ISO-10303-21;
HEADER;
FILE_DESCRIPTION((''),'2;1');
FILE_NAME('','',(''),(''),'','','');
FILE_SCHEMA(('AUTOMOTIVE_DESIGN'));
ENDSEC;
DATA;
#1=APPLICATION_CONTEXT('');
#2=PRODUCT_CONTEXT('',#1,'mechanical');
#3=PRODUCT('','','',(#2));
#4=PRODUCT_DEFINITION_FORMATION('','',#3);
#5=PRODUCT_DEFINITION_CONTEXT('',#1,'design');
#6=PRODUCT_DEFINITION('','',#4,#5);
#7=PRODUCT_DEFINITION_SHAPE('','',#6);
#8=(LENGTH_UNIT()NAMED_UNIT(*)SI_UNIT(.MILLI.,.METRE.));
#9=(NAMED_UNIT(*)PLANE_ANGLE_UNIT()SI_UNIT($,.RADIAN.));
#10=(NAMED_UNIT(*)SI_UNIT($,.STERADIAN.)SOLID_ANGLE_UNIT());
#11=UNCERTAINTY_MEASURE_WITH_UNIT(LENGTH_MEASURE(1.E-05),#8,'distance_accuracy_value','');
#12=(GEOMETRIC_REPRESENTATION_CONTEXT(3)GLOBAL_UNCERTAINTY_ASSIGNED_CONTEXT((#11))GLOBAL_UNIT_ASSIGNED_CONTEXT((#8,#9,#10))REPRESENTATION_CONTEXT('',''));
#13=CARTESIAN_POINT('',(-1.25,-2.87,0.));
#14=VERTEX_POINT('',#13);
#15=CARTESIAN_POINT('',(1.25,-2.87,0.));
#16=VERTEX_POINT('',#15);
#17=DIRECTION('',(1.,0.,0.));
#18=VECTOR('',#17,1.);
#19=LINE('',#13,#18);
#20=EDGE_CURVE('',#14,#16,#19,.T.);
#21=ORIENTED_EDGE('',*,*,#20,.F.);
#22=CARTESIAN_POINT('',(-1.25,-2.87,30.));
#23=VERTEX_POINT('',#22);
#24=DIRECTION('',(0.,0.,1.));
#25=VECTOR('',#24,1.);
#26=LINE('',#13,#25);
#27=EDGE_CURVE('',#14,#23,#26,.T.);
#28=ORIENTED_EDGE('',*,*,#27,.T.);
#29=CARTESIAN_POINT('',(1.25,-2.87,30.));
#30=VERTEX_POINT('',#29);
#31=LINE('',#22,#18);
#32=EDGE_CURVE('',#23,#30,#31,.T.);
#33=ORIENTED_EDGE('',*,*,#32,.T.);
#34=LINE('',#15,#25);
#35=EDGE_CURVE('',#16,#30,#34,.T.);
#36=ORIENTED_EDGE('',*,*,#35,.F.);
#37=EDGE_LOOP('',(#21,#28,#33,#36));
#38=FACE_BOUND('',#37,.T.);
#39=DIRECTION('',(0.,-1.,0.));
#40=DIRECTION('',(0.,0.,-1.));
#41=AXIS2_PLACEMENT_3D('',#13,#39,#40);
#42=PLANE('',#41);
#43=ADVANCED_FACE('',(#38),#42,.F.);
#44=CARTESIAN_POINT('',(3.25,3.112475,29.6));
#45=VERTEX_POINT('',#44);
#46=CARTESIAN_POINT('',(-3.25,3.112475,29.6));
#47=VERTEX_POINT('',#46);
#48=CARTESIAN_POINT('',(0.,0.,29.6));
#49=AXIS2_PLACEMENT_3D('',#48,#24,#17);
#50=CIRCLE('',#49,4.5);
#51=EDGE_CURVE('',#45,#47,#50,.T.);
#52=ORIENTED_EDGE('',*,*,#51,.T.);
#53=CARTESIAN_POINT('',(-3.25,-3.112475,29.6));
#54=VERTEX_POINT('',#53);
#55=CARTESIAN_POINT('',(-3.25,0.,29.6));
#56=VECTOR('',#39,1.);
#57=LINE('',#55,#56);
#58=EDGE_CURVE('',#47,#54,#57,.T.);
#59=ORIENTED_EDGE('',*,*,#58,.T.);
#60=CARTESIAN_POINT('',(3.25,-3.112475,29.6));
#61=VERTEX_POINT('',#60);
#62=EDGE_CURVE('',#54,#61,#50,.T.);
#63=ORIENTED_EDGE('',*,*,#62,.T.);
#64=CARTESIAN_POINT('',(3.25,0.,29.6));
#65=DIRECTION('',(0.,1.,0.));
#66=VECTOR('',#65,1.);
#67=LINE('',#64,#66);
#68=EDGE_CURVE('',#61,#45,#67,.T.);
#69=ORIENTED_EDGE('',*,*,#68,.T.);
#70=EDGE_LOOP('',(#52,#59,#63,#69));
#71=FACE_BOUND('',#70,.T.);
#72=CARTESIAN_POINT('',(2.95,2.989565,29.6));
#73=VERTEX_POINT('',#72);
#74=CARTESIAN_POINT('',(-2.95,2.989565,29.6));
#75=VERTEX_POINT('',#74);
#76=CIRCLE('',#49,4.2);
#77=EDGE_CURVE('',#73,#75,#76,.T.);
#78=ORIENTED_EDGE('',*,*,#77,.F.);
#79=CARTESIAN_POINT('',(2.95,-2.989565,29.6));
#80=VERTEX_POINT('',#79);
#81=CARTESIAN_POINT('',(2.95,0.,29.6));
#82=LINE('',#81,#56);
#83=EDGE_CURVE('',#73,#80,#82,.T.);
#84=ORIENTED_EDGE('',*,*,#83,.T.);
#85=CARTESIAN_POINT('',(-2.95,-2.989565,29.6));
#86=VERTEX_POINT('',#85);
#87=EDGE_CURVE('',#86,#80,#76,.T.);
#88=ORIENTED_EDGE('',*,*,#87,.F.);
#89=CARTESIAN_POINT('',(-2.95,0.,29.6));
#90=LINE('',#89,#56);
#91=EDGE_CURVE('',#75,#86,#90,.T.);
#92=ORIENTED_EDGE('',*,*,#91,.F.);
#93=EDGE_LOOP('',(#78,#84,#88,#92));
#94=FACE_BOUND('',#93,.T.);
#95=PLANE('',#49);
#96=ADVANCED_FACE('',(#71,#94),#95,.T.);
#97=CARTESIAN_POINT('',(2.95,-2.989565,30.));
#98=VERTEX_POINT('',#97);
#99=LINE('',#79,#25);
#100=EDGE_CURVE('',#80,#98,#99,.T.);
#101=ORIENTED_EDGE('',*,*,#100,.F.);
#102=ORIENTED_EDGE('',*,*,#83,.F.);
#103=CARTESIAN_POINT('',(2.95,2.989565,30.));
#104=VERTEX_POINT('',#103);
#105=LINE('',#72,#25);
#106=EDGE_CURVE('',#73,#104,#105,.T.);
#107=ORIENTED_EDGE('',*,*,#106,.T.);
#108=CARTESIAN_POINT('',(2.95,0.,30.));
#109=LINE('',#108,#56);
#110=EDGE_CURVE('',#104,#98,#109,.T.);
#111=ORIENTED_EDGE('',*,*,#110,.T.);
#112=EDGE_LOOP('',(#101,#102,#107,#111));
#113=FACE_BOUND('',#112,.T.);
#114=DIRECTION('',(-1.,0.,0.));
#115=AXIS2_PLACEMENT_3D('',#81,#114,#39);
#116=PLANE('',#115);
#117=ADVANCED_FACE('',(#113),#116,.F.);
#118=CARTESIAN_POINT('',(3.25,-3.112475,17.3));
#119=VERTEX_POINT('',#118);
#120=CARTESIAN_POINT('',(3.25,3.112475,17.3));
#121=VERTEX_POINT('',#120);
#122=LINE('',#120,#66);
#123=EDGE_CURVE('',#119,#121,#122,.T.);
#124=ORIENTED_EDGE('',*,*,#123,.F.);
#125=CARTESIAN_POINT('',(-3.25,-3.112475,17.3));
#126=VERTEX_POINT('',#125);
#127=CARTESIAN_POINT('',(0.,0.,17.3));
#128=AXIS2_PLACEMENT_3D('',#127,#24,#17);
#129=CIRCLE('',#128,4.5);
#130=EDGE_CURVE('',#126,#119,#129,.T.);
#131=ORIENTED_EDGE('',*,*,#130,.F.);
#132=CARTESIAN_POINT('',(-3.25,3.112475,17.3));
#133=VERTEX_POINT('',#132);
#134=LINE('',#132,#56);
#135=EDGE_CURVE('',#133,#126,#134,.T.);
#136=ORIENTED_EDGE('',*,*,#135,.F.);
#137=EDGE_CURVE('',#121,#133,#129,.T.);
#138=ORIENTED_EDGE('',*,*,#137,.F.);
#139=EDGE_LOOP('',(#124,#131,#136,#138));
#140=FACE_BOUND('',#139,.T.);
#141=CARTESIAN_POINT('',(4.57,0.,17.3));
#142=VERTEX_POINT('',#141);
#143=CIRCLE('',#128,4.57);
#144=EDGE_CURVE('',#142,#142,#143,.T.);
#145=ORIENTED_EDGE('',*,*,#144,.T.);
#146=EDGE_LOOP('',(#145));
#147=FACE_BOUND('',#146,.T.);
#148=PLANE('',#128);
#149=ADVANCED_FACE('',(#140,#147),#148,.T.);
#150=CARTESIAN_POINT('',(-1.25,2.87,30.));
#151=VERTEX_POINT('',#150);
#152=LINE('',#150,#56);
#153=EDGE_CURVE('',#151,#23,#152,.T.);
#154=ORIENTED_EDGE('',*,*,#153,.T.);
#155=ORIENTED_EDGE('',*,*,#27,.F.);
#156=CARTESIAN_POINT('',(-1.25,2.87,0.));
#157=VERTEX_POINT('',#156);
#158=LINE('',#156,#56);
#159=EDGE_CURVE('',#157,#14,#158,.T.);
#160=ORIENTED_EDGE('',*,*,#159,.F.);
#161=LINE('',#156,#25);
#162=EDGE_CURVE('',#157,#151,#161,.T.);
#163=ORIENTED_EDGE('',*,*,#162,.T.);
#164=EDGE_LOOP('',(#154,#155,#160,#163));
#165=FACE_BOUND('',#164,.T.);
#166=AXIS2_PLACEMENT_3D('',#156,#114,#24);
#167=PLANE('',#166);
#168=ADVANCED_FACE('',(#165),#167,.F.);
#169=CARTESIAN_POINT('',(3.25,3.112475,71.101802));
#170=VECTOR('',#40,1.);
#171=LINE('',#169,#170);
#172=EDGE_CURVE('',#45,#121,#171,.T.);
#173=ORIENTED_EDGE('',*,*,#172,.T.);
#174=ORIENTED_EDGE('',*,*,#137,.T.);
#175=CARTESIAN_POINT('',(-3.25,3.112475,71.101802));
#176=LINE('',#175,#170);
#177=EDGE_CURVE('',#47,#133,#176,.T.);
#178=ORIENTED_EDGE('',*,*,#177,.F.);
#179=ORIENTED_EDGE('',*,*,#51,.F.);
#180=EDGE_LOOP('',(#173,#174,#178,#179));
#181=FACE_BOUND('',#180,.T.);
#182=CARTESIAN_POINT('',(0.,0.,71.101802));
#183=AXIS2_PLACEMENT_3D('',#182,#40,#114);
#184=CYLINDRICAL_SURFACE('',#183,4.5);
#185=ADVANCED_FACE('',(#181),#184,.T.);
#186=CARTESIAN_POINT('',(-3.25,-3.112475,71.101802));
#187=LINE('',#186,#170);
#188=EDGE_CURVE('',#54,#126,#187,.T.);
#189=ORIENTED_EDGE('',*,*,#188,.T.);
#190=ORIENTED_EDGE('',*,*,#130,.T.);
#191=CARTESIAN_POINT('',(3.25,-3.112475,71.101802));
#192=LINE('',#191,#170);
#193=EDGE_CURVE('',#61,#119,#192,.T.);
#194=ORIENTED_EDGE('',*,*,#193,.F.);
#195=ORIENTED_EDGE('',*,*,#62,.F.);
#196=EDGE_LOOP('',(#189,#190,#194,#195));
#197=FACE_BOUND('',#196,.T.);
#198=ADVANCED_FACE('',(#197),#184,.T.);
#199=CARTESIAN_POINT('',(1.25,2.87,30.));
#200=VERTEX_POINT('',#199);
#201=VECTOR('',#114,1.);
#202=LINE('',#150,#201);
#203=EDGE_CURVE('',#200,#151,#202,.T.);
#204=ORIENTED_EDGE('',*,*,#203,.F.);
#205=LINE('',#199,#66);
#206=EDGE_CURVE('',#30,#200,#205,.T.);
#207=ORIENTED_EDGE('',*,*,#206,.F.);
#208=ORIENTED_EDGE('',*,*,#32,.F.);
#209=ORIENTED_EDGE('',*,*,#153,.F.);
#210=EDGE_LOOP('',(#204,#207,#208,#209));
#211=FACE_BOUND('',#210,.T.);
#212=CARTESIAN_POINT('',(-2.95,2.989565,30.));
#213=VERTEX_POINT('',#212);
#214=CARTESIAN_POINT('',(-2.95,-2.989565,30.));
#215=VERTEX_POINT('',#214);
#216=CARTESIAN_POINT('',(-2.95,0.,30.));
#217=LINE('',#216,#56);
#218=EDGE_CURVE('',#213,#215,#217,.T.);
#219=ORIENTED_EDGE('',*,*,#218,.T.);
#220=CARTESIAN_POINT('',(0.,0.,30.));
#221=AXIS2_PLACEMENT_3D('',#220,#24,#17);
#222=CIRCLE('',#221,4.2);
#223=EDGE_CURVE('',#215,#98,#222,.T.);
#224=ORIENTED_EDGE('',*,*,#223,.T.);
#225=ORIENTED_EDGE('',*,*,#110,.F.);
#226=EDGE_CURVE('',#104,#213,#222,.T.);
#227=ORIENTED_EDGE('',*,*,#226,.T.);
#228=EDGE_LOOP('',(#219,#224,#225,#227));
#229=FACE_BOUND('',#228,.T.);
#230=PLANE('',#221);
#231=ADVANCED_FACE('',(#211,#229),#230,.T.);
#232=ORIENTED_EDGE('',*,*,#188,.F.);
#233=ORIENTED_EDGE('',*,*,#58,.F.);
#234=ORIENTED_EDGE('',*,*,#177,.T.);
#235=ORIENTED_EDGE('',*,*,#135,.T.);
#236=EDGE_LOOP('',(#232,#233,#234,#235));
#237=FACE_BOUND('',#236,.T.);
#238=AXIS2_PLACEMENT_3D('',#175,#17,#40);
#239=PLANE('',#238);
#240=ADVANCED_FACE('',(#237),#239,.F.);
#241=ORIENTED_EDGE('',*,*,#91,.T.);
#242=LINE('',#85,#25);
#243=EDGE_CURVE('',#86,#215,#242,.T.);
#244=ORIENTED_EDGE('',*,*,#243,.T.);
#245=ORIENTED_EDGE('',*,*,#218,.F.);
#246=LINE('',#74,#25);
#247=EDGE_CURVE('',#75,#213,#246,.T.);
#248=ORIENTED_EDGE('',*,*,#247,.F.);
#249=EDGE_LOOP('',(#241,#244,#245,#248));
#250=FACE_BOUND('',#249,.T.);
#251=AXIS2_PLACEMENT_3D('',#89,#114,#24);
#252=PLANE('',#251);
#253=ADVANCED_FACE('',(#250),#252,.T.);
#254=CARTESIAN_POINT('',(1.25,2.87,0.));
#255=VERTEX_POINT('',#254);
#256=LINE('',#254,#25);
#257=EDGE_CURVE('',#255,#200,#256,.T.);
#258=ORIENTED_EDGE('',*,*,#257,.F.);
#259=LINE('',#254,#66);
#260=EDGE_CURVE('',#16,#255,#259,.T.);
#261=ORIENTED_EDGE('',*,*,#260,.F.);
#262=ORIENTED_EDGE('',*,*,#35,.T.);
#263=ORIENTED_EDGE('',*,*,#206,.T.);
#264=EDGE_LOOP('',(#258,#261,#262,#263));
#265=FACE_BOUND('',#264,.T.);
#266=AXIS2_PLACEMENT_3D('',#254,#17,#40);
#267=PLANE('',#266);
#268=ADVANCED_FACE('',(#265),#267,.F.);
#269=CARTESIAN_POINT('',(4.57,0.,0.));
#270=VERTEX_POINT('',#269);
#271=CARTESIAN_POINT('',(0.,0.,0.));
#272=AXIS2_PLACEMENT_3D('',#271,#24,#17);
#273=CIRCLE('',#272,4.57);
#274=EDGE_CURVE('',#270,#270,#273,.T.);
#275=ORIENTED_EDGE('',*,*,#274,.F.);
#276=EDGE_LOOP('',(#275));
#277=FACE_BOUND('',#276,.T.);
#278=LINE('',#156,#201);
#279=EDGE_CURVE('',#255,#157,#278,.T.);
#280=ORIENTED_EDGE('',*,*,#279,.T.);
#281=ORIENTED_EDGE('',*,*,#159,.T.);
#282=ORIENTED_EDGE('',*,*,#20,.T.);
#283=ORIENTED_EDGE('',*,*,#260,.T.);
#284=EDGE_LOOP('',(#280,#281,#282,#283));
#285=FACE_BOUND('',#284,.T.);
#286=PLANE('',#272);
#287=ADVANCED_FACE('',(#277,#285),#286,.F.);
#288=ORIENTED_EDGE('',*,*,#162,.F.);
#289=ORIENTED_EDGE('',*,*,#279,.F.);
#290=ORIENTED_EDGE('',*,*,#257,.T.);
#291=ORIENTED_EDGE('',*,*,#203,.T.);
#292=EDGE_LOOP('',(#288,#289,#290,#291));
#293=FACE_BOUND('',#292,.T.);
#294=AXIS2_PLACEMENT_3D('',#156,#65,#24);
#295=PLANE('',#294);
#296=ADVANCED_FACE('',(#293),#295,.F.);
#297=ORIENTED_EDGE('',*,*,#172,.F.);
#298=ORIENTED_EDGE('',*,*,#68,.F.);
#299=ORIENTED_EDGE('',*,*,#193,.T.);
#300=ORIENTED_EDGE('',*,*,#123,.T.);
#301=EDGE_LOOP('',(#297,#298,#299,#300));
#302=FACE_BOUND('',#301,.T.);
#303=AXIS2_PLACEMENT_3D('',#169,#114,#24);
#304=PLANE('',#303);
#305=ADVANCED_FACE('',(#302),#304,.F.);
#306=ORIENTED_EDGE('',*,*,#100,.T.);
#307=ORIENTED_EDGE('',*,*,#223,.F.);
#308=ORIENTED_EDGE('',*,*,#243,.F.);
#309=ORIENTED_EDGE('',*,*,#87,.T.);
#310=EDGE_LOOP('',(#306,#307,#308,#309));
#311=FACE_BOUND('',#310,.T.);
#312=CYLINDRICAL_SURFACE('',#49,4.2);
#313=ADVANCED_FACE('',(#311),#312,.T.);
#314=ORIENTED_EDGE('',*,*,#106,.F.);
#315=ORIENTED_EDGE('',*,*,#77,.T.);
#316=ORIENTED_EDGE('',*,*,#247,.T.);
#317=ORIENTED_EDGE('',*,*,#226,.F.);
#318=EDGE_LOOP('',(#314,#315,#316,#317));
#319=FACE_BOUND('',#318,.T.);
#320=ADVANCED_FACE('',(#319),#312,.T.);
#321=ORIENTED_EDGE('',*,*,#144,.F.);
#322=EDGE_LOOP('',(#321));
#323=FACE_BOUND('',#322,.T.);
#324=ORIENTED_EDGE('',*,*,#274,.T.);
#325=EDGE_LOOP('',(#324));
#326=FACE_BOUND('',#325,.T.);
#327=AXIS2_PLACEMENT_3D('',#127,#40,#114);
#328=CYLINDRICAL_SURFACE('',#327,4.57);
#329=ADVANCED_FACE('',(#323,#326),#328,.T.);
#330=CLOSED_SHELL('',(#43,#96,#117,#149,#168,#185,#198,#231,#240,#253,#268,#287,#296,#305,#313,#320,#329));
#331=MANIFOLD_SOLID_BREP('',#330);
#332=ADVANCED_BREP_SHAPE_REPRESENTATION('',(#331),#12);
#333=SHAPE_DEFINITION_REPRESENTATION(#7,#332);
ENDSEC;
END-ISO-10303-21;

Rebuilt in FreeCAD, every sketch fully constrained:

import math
import FreeCAD as App
import Part
import Sketcher

V = App.Vector
Q = App.Units.Quantity


def add_polygon(sketch, points):
    """Adds a closed chain of lines whose ends are joined by coincident constraints."""
    first, n = sketch.GeometryCount, len(points)
    for a, b in zip(points, points[1:] + points[:1]):
        sketch.addGeometry(Part.LineSegment(App.Vector(*a, 0), App.Vector(*b, 0)), False)
    for i in range(n):
        sketch.addConstraint(Sketcher.Constraint("Coincident", first + i, 2, first + (i + 1) % n, 1))

doc = App.newDocument("Part")
body = doc.addObject("PartDesign::Body", "Body")

# Sketch on XY plane
sketch1 = body.newObject("Sketcher::SketchObject", "Sketch")
sketch1.AttachmentSupport = (doc.getObject("XY_Plane"), [""])
sketch1.MapMode = "FlatFace"
sketch1.addGeometry(Part.Circle(V(0, 0, 0), V(0, 0, 1), 4.6), False)
sketch1.addConstraint(Sketcher.Constraint("Coincident", 0, 3, -1, 1))
sketch1.addConstraint(Sketcher.Constraint("Diameter", 0, Q("9.14 mm")))
pad1 = body.newObject("PartDesign::Pad", "Pad")
pad1.Profile = sketch1
pad1.Length = 17.3

# Sketch on XY plane
sketch2 = body.newObject("Sketcher::SketchObject", "Sketch001")
sketch2.AttachmentSupport = (doc.getObject("XY_Plane"), [""])
sketch2.MapMode = "FlatFace"
sketch2.AttachmentOffset = App.Placement(V(0, 0, 17.3), App.Rotation())
sketch2.addGeometry(Part.LineSegment(V(-3.2, 3.1, 0), V(-3.2, -3.1, 0)), False)
sketch2.addGeometry(Part.ArcOfCircle(Part.Circle(V(0, 0, 0), V(0, 0, 1), 4.5), math.radians(-136), math.radians(-44)), False)
sketch2.addGeometry(Part.LineSegment(V(3.2, -3.1, 0), V(3.2, 3.1, 0)), False)
sketch2.addGeometry(Part.ArcOfCircle(Part.Circle(V(0, 0, 0), V(0, 0, 1), 4.5), math.radians(44), math.radians(136)), False)
sketch2.addConstraint(Sketcher.Constraint("Coincident", 0, 2, 1, 1))
sketch2.addConstraint(Sketcher.Constraint("Coincident", 1, 2, 2, 1))
sketch2.addConstraint(Sketcher.Constraint("Coincident", 2, 2, 3, 1))
sketch2.addConstraint(Sketcher.Constraint("Coincident", 3, 2, 0, 1))
sketch2.addConstraint(Sketcher.Constraint("Vertical", 0))
sketch2.addConstraint(Sketcher.Constraint("Vertical", 2))
sketch2.addConstraint(Sketcher.Constraint("Coincident", 1, 3, -1, 1))
sketch2.addConstraint(Sketcher.Constraint("Coincident", 3, 3, -1, 1))
sketch2.addConstraint(Sketcher.Constraint("Equal", 1, 3))
sketch2.addConstraint(Sketcher.Constraint("Horizontal", 0, 2, 1, 2))
sketch2.addConstraint(Sketcher.Constraint("Radius", 1, Q("4.5 mm")))
sketch2.addConstraint(Sketcher.Constraint("DistanceX", 0, 2, 1, 2, Q("6.5 mm")))
pad2 = body.newObject("PartDesign::Pad", "Pad001")
pad2.Profile = sketch2
pad2.Length = 12.7

# Sketch on XY plane
sketch3 = body.newObject("Sketcher::SketchObject", "Sketch002")
sketch3.AttachmentSupport = (doc.getObject("XY_Plane"), [""])
sketch3.MapMode = "FlatFace"
sketch3.AttachmentOffset = App.Placement(V(0, 0, 30), App.Rotation())
add_polygon(sketch3, [(-1.2, 2.9), (-1.2, -2.9), (1.2, -2.9), (1.2, 2.9)])  # lines 0-3
sketch3.addConstraint(Sketcher.Constraint("Vertical", 0))
sketch3.addConstraint(Sketcher.Constraint("Horizontal", 1))
sketch3.addConstraint(Sketcher.Constraint("Vertical", 2))
sketch3.addConstraint(Sketcher.Constraint("Horizontal", 3))
sketch3.addConstraint(Sketcher.Constraint("Symmetric", 0, 2, 2, 2, -1, 1))
sketch3.addConstraint(Sketcher.Constraint("DistanceX", 1, 1, 1, 2, Q("2.5 mm")))
sketch3.addConstraint(Sketcher.Constraint("DistanceY", 0, 2, 0, 1, Q("5.74 mm")))
pocket1 = body.newObject("PartDesign::Pocket", "Pocket")
pocket1.Profile = sketch3
pocket1.Type = "ThroughAll"

# Sketch on XY plane
sketch4 = body.newObject("Sketcher::SketchObject", "Sketch003")
sketch4.AttachmentSupport = (doc.getObject("XY_Plane"), [""])
sketch4.MapMode = "FlatFace"
sketch4.AttachmentOffset = App.Placement(V(0, 0, 30), App.Rotation())
sketch4.addGeometry(Part.Circle(V(0, 0, 0), V(0, 0, 1), 4.5), False)
sketch4.addGeometry(Part.LineSegment(V(-3, -3, 0), V(-3, 3, 0)), False)
sketch4.addGeometry(Part.ArcOfCircle(Part.Circle(V(0, 0, 0), V(0, 0, 1), 4.2), math.radians(45), math.radians(135)), False)
sketch4.addGeometry(Part.LineSegment(V(3, 3, 0), V(3, -3, 0)), False)
sketch4.addGeometry(Part.ArcOfCircle(Part.Circle(V(0, 0, 0), V(0, 0, 1), 4.2), math.radians(-135), math.radians(-45)), False)
sketch4.addConstraint(Sketcher.Constraint("Coincident", 1, 2, 2, 2))
sketch4.addConstraint(Sketcher.Constraint("Coincident", 2, 1, 3, 1))
sketch4.addConstraint(Sketcher.Constraint("Coincident", 3, 2, 4, 2))
sketch4.addConstraint(Sketcher.Constraint("Coincident", 4, 1, 1, 1))
sketch4.addConstraint(Sketcher.Constraint("Vertical", 1))
sketch4.addConstraint(Sketcher.Constraint("Vertical", 3))
sketch4.addConstraint(Sketcher.Constraint("Coincident", 0, 3, -1, 1))
sketch4.addConstraint(Sketcher.Constraint("Coincident", 2, 3, -1, 1))
sketch4.addConstraint(Sketcher.Constraint("Coincident", 4, 3, -1, 1))
sketch4.addConstraint(Sketcher.Constraint("Equal", 2, 4))
sketch4.addConstraint(Sketcher.Constraint("Horizontal", 1, 2, 2, 1))
sketch4.addConstraint(Sketcher.Constraint("Diameter", 0, Q("9 mm")))
sketch4.addConstraint(Sketcher.Constraint("Radius", 2, Q("4.2 mm")))
sketch4.addConstraint(Sketcher.Constraint("DistanceX", 1, 2, 2, 1, Q("5.9 mm")))
pocket2 = body.newObject("PartDesign::Pocket", "Pocket001")
pocket2.Profile = sketch4
pocket2.Length = 0.4

doc.recompute()
